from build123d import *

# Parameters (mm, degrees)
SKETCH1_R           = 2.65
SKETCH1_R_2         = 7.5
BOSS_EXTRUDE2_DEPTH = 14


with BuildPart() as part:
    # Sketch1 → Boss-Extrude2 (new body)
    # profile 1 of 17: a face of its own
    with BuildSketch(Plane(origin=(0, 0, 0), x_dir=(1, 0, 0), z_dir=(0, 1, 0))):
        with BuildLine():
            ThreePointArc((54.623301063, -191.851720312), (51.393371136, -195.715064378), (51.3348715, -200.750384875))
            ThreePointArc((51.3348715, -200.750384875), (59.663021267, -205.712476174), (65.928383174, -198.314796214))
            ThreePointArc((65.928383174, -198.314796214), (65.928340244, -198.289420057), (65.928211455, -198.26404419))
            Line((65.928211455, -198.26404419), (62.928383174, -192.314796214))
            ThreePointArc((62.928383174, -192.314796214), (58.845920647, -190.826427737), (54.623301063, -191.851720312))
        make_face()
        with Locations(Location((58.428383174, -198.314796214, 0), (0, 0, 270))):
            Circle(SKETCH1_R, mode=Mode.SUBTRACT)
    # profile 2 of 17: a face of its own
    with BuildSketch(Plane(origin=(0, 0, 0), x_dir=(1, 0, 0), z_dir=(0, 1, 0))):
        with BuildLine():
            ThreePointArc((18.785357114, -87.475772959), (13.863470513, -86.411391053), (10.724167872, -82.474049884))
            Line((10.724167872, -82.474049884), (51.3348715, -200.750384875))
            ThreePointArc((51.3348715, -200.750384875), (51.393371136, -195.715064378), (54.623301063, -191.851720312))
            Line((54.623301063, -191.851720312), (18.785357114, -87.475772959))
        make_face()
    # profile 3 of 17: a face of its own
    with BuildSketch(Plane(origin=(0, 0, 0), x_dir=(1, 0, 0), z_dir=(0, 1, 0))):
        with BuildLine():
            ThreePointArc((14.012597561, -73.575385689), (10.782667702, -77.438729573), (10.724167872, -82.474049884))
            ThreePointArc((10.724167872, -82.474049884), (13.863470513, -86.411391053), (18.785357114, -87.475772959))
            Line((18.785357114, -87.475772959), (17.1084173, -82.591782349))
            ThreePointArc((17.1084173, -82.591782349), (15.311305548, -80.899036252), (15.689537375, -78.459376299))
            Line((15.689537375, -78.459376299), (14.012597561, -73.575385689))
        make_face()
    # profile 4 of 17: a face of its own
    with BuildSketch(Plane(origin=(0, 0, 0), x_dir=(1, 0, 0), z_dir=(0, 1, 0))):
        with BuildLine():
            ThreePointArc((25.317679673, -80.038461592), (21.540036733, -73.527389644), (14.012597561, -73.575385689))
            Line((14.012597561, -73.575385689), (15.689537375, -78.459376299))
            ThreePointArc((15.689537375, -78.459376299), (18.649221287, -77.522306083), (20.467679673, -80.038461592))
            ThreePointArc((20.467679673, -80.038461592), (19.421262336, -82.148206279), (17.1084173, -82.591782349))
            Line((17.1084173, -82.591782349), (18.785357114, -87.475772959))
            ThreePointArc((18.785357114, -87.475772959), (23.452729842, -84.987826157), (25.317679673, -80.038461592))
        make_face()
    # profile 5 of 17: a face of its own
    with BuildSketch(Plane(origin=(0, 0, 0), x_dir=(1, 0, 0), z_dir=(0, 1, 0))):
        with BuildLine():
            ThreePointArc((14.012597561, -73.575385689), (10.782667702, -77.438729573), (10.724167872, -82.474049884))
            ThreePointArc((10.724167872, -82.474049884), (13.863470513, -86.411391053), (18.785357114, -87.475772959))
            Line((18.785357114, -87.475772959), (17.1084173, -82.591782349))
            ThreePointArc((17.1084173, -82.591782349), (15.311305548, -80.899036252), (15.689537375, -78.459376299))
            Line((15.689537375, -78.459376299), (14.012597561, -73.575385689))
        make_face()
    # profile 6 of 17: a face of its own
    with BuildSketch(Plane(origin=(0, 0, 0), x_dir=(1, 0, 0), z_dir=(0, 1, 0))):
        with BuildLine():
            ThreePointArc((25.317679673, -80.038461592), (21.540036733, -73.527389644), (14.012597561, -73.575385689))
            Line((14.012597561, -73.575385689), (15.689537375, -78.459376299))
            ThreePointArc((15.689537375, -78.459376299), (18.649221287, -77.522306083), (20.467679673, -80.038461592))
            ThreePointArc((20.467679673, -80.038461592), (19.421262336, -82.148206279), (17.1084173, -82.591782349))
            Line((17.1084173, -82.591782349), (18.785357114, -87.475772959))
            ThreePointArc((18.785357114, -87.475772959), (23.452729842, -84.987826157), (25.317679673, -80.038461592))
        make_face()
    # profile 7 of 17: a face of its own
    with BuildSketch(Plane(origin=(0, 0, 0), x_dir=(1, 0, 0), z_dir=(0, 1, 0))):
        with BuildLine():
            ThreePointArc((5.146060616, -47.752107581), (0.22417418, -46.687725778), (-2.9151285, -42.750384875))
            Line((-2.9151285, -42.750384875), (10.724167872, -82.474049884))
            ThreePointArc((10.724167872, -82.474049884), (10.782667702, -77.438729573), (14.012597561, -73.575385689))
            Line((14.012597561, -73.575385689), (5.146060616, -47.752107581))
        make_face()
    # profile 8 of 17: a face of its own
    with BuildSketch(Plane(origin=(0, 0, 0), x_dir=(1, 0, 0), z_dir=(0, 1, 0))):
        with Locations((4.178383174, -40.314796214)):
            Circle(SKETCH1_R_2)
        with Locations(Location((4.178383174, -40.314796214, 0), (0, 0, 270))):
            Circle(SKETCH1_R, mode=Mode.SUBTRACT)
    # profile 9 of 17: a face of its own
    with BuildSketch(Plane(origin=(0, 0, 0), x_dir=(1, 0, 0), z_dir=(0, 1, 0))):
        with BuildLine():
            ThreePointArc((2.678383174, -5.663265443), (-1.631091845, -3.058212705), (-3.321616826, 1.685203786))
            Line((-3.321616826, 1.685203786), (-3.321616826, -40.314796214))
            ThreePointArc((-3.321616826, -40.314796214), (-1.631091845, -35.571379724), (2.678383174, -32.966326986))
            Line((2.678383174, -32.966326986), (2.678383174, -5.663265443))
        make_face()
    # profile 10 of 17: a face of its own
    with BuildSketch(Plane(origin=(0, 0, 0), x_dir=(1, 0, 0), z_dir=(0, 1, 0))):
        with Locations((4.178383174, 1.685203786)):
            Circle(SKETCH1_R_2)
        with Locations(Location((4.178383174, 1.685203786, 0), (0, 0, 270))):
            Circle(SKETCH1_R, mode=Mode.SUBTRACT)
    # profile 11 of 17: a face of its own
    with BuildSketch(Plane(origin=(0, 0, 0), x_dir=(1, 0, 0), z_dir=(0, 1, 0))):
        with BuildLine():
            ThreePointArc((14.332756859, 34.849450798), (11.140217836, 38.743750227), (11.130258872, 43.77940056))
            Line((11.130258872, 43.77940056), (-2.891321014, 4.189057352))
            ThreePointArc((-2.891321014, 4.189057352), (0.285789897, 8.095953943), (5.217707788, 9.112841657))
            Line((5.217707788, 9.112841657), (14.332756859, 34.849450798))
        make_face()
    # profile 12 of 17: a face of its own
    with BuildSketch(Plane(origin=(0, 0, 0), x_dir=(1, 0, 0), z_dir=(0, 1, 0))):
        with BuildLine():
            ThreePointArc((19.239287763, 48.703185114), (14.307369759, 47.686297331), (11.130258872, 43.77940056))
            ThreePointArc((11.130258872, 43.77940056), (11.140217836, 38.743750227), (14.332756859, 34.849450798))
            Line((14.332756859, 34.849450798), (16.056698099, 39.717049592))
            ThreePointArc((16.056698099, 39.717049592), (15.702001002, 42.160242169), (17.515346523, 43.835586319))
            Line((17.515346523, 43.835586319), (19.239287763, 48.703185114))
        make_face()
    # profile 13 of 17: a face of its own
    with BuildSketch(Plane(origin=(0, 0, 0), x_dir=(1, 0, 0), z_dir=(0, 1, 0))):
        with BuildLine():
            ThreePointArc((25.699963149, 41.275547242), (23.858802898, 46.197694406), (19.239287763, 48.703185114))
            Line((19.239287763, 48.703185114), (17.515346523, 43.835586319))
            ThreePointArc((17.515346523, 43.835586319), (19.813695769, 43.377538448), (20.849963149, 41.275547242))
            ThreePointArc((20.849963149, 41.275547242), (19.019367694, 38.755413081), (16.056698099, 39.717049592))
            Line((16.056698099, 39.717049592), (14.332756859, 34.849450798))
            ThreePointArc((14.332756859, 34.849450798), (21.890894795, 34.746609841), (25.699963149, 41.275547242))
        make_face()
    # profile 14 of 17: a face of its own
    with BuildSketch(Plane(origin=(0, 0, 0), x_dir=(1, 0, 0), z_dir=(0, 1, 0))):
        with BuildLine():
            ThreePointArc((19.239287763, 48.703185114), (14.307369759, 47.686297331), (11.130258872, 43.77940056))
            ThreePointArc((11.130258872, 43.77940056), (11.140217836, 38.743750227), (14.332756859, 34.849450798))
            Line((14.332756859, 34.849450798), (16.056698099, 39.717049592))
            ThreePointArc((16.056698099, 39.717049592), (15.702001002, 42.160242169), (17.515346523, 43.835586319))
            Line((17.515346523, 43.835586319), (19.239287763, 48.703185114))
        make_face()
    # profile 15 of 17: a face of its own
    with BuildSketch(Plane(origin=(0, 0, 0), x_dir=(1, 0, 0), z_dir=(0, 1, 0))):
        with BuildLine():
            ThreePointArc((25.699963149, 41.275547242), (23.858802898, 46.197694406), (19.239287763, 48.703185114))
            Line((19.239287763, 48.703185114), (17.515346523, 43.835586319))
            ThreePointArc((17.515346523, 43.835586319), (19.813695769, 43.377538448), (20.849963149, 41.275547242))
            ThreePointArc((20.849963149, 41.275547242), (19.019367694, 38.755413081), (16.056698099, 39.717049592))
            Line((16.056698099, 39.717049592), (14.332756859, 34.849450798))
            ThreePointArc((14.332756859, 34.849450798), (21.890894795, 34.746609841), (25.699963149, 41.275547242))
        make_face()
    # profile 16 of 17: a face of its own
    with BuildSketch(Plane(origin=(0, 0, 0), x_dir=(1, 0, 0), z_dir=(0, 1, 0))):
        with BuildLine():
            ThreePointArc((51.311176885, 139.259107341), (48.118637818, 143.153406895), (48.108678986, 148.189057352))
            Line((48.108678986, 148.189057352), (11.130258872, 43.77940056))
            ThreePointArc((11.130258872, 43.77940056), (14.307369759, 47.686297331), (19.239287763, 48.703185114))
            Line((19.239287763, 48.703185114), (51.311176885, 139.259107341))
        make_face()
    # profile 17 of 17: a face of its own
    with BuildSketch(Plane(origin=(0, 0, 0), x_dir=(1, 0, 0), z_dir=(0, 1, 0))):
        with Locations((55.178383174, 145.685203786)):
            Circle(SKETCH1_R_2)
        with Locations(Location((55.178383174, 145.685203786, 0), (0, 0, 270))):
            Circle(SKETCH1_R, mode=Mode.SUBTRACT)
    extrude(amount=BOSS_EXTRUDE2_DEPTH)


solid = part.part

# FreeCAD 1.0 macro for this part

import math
import FreeCAD as App
import Part
import Sketcher

V = App.Vector
Q = App.Units.Quantity

doc = App.newDocument("Part")
body = doc.addObject("PartDesign::Body", "Body")

# Sketch on XZ plane
sketch1 = doc.addObject("Sketcher::SketchObject", "Sketch")
body.addObject(sketch1)
sketch1.AttachmentSupport = (doc.XZ_Plane, [""])
sketch1.MapMode = "FlatFace"
sketch1.addGeometry(Part.ArcOfCircle(Part.Circle(V(58.43, 198.31, 0), V(0, 0, 1), 7.5), math.radians(-120), math.radians(-53)), False)
sketch1.addGeometry(Part.LineSegment(V(54.62, 191.85, 0), V(18.79, 87.48, 0)), False)
sketch1.addGeometry(Part.ArcOfCircle(Part.Circle(V(17.82, 80.04, 0), V(0, 0, 1), 7.5), math.radians(0), math.radians(83)), False)
sketch1.addGeometry(Part.ArcOfCircle(Part.Circle(V(17.82, 80.04, 0), V(0, 0, 1), 7.5), math.radians(-120), math.radians(0)), False)
sketch1.addGeometry(Part.LineSegment(V(14.01, 73.58, 0), V(5.15, 47.75, 0)), False)
sketch1.addGeometry(Part.ArcOfCircle(Part.Circle(V(4.18, 40.31, 0), V(0, 0, 1), 7.5), math.radians(-102), math.radians(83)), False)
sketch1.addGeometry(Part.LineSegment(V(2.68, 32.97, 0), V(2.68, 5.66, 0)), False)
sketch1.addGeometry(Part.ArcOfCircle(Part.Circle(V(4.18, -1.69, 0), V(0, 0, 1), 7.5), math.radians(-82), math.radians(102)), False)
sketch1.addGeometry(Part.LineSegment(V(5.22, -9.11, 0), V(14.33, -34.85, 0)), False)
sketch1.addGeometry(Part.ArcOfCircle(Part.Circle(V(18.2, -41.28, 0), V(0, 0, 1), 7.5), math.radians(0), math.radians(121)), False)
sketch1.addGeometry(Part.ArcOfCircle(Part.Circle(V(18.2, -41.28, 0), V(0, 0, 1), 7.5), math.radians(-82), math.radians(0)), False)
sketch1.addGeometry(Part.LineSegment(V(19.24, -48.7, 0), V(51.31, -139.26, 0)), False)
sketch1.addGeometry(Part.ArcOfCircle(Part.Circle(V(55.18, -145.69, 0), V(0, 0, 1), 7.5), math.radians(-160), math.radians(121)), False)
sketch1.addGeometry(Part.LineSegment(V(48.11, -148.19, 0), V(11.13, -43.78, 0)), False)
sketch1.addGeometry(Part.LineSegment(V(11.13, -43.78, 0), V(-2.89, -4.19, 0)), False)
sketch1.addGeometry(Part.ArcOfCircle(Part.Circle(V(4.18, -1.69, 0), V(0, 0, 1), 7.5), math.radians(180), math.radians(199.5)), False)
sketch1.addGeometry(Part.LineSegment(V(-3.32, -1.69, 0), V(-3.32, 40.31, 0)), False)
sketch1.addGeometry(Part.ArcOfCircle(Part.Circle(V(4.18, 40.31, 0), V(0, 0, 1), 7.5), math.radians(161.05), math.radians(180)), False)
sketch1.addGeometry(Part.LineSegment(V(-2.92, 42.75, 0), V(10.72, 82.47, 0)), False)
sketch1.addGeometry(Part.LineSegment(V(10.72, 82.47, 0), V(51.33, 200.75, 0)), False)
sketch1.addGeometry(Part.ArcOfCircle(Part.Circle(V(58.43, 198.31, 0), V(0, 0, 1), 7.5), math.radians(0), math.radians(161)), False)
sketch1.addGeometry(Part.ArcOfCircle(Part.Circle(V(58.43, 198.31, 0), V(0, 0, 1), 7.5), math.radians(-0.39), math.radians(0)), False)
sketch1.addGeometry(Part.LineSegment(V(65.93, 198.26, 0), V(62.93, 192.31, 0)), False)
sketch1.addGeometry(Part.Circle(V(58.43, 198.31, 0), V(0, 0, 1), 2.65), False)
sketch1.addGeometry(Part.ArcOfCircle(Part.Circle(V(17.82, 80.04, 0), V(0, 0, 1), 2.65), math.radians(106), math.radians(217)), False)
sketch1.addGeometry(Part.ArcOfCircle(Part.Circle(V(17.82, 80.04, 0), V(0, 0, 1), 2.65), math.radians(-143), math.radians(0)), False)
sketch1.addGeometry(Part.ArcOfCircle(Part.Circle(V(17.82, 80.04, 0), V(0, 0, 1), 2.65), math.radians(0), math.radians(106)), False)
sketch1.addGeometry(Part.Circle(V(4.18, 40.31, 0), V(0, 0, 1), 2.65), False)
sketch1.addGeometry(Part.Circle(V(4.18, -1.69, 0), V(0, 0, 1), 2.65), False)
sketch1.addGeometry(Part.ArcOfCircle(Part.Circle(V(18.2, -41.28, 0), V(0, 0, 1), 2.65), math.radians(144), math.radians(255)), False)
sketch1.addGeometry(Part.ArcOfCircle(Part.Circle(V(18.2, -41.28, 0), V(0, 0, 1), 2.65), math.radians(-105), math.radians(0)), False)
sketch1.addGeometry(Part.ArcOfCircle(Part.Circle(V(18.2, -41.28, 0), V(0, 0, 1), 2.65), math.radians(0), math.radians(144)), False)
sketch1.addGeometry(Part.Circle(V(55.18, -145.69, 0), V(0, 0, 1), 2.65), False)
sketch1.addConstraint(Sketcher.Constraint("Coincident", 0, 1, 1, 1))
sketch1.addConstraint(Sketcher.Constraint("Coincident", 1, 2, 2, 2))
sketch1.addConstraint(Sketcher.Constraint("Tangent", 2, 1, 3, 2))
sketch1.addConstraint(Sketcher.Constraint("Coincident", 3, 1, 4, 1))
sketch1.addConstraint(Sketcher.Constraint("Coincident", 4, 2, 5, 2))
sketch1.addConstraint(Sketcher.Constraint("Coincident", 5, 1, 6, 1))
sketch1.addConstraint(Sketcher.Constraint("Coincident", 6, 2, 7, 2))
sketch1.addConstraint(Sketcher.Constraint("Coincident", 7, 1, 8, 1))
sketch1.addConstraint(Sketcher.Constraint("Coincident", 8, 2, 9, 2))
sketch1.addConstraint(Sketcher.Constraint("Tangent", 9, 1, 10, 2))
sketch1.addConstraint(Sketcher.Constraint("Coincident", 10, 1, 11, 1))
sketch1.addConstraint(Sketcher.Constraint("Coincident", 11, 2, 12, 2))
sketch1.addConstraint(Sketcher.Constraint("Tangent", 12, 1, 13, 1))
sketch1.addConstraint(Sketcher.Constraint("Coincident", 13, 2, 14, 1))
sketch1.addConstraint(Sketcher.Constraint("Tangent", 14, 2, 15, 2))
sketch1.addConstraint(Sketcher.Constraint("Tangent", 15, 1, 16, 1))
sketch1.addConstraint(Sketcher.Constraint("Tangent", 16, 2, 17, 2))
sketch1.addConstraint(Sketcher.Constraint("Tangent", 17, 1, 18, 1))
sketch1.addConstraint(Sketcher.Constraint("Coincident", 18, 2, 19, 1))
sketch1.addConstraint(Sketcher.Constraint("Tangent", 19, 2, 20, 2))
sketch1.addConstraint(Sketcher.Constraint("Tangent", 20, 1, 21, 2))
sketch1.addConstraint(Sketcher.Constraint("Coincident", 21, 1, 22, 1))
sketch1.addConstraint(Sketcher.Constraint("Coincident", 22, 2, 0, 2))
sketch1.addConstraint(Sketcher.Constraint("Tangent", 24, 2, 25, 1))
sketch1.addConstraint(Sketcher.Constraint("Tangent", 25, 2, 26, 1))
sketch1.addConstraint(Sketcher.Constraint("Tangent", 26, 2, 24, 1))
sketch1.addConstraint(Sketcher.Constraint("Tangent", 29, 2, 30, 1))
sketch1.addConstraint(Sketcher.Constraint("Tangent", 30, 2, 31, 1))
sketch1.addConstraint(Sketcher.Constraint("Tangent", 31, 2, 29, 1))
sketch1.addConstraint(Sketcher.Constraint("Vertical", 6))
sketch1.addConstraint(Sketcher.Constraint("Vertical", 16))
sketch1.addConstraint(Sketcher.Constraint("Coincident", 15, 3, 7, 3))
sketch1.addConstraint(Sketcher.Constraint("Coincident", 17, 3, 5, 3))
sketch1.addConstraint(Sketcher.Constraint("Coincident", 20, 3, 0, 3))
sketch1.addConstraint(Sketcher.Constraint("Coincident", 23, 3, 0, 3))
sketch1.addConstraint(Sketcher.Constraint("Coincident", 24, 3, 2, 3))
sketch1.addConstraint(Sketcher.Constraint("Coincident", 27, 3, 5, 3))
sketch1.addConstraint(Sketcher.Constraint("Coincident", 28, 3, 7, 3))
sketch1.addConstraint(Sketcher.Constraint("Coincident", 29, 3, 9, 3))
sketch1.addConstraint(Sketcher.Constraint("Coincident", 32, 3, 12, 3))
sketch1.addConstraint(Sketcher.Constraint("Equal", 0, 2))
sketch1.addConstraint(Sketcher.Constraint("Equal", 2, 3))
sketch1.addConstraint(Sketcher.Constraint("Equal", 3, 5))
sketch1.addConstraint(Sketcher.Constraint("Equal", 5, 7))
sketch1.addConstraint(Sketcher.Constraint("Equal", 7, 9))
sketch1.addConstraint(Sketcher.Constraint("Equal", 9, 10))
sketch1.addConstraint(Sketcher.Constraint("Equal", 10, 12))
sketch1.addConstraint(Sketcher.Constraint("Equal", 12, 15))
sketch1.addConstraint(Sketcher.Constraint("Equal", 15, 17))
sketch1.addConstraint(Sketcher.Constraint("Equal", 17, 20))
sketch1.addConstraint(Sketcher.Constraint("Equal", 23, 24))
sketch1.addConstraint(Sketcher.Constraint("Equal", 26, 27))
sketch1.addConstraint(Sketcher.Constraint("Equal", 27, 28))
sketch1.addConstraint(Sketcher.Constraint("Equal", 28, 29))
sketch1.addConstraint(Sketcher.Constraint("Equal", 31, 32))
sketch1.addConstraint(Sketcher.Constraint("Parallel", 1, 4))
sketch1.addConstraint(Sketcher.Constraint("Parallel", 8, 11))
sketch1.addConstraint(Sketcher.Constraint("Parallel", 11, 13))
sketch1.addConstraint(Sketcher.Constraint("Parallel", 13, 14))
sketch1.addConstraint(Sketcher.Constraint("Parallel", 4, 18))
sketch1.addConstraint(Sketcher.Constraint("Parallel", 18, 19))
sketch1.addConstraint(Sketcher.Constraint("Horizontal", 26, 3, 2, 1))
sketch1.addConstraint(Sketcher.Constraint("Horizontal", 31, 3, 9, 1))
sketch1.addConstraint(Sketcher.Constraint("Horizontal", 23, 3, 20, 1))
sketch1.addConstraint(Sketcher.Constraint("Horizontal", 2, 1, 25, 2))
sketch1.addConstraint(Sketcher.Constraint("Horizontal", 9, 1, 30, 2))
sketch1.addConstraint(Sketcher.Constraint("Equal", 4, 8))
sketch1.addConstraint(Sketcher.Constraint("Equal", 14, 18))
sketch1.addConstraint(Sketcher.Constraint("Diameter", 23, Q("5.3 mm")))
sketch1.addConstraint(Sketcher.Constraint("Radius", 0, Q("7.5 mm")))
sketch1.addConstraint(Sketcher.Constraint("DistanceY", 16, 1, 16, 2, Q("42 mm")))
sketch1.addConstraint(Sketcher.Constraint("Distance", 14, Q("42 mm")))
sketch1.addConstraint(Sketcher.Constraint("DistanceY", 5, 3, 0, 3, Q("158 mm")))
sketch1.addConstraint(Sketcher.Constraint("DistanceX", 7, 3, 12, 3, Q("51 mm")))
sketch1.addConstraint(Sketcher.Constraint("DistanceY", 12, 3, 7, 3, Q("144 mm")))
sketch1.addConstraint(Sketcher.Constraint("DistanceX", 15, 1, 6, 2, Q("6 mm")))
sketch1.addConstraint(Sketcher.Constraint("DistanceX", 22, 2, 20, 1, Q("3 mm")))
sketch1.addConstraint(Sketcher.Constraint("Radius", 21, Q("7.500059 mm")))
sketch1.addConstraint(Sketcher.Constraint("DistanceX", 5, 3, 0, 3, Q("54.25 mm")))
sketch1.addConstraint(Sketcher.Constraint("DistanceX", -1, 1, 0, 1, Q("54.623301 mm")))
sketch1.addConstraint(Sketcher.Constraint("DistanceY", 13, 2, -1, 1, Q("43.779401 mm")))
sketch1.addConstraint(Sketcher.Constraint("DistanceX", -1, 1, 31, 2, Q("16.056698 mm")))
sketch1.addConstraint(Sketcher.Constraint("Distance", 4, Q("27.303062 mm")))
sketch1.addConstraint(Sketcher.Constraint("Distance", 22, Q("6.662771 mm")))
sketch1.addConstraint(Sketcher.Constraint("DistanceX", -1, 1, 2, 3, Q("17.81768 mm")))
sketch1.addConstraint(Sketcher.Constraint("DistanceY", -1, 1, 2, 3, Q("80.038462 mm")))
sketch1.addConstraint(Sketcher.Constraint("DistanceY", -1, 1, 0, 1, Q("191.85172 mm")))
sketch1.addConstraint(Sketcher.Constraint("DistanceY", 7, 1, -1, 1, Q("9.112842 mm")))
sketch1.addConstraint(Sketcher.Constraint("DistanceY", 31, 2, -1, 1, Q("39.71705 mm")))
sketch1.addConstraint(Sketcher.Constraint("DistanceX", 10, 1, 11, 2, Q("32.071889 mm")))
sketch1.addConstraint(Sketcher.Constraint("DistanceY", 3, 3, 26, 2, Q("2.553321 mm")))
sketch1.addConstraint(Sketcher.Constraint("DistanceY", 29, 2, 10, 3, Q("2.560039 mm")))
sketch1.addConstraint(Sketcher.Constraint("DistanceX", -1, 1, 24, 2, Q("15.689537 mm")))
pad1 = doc.addObject("PartDesign::Pad", "Pad")
body.addObject(pad1)
pad1.Profile = sketch1
pad1.Length = 14
pad1.Reversed = True

doc.recompute()
